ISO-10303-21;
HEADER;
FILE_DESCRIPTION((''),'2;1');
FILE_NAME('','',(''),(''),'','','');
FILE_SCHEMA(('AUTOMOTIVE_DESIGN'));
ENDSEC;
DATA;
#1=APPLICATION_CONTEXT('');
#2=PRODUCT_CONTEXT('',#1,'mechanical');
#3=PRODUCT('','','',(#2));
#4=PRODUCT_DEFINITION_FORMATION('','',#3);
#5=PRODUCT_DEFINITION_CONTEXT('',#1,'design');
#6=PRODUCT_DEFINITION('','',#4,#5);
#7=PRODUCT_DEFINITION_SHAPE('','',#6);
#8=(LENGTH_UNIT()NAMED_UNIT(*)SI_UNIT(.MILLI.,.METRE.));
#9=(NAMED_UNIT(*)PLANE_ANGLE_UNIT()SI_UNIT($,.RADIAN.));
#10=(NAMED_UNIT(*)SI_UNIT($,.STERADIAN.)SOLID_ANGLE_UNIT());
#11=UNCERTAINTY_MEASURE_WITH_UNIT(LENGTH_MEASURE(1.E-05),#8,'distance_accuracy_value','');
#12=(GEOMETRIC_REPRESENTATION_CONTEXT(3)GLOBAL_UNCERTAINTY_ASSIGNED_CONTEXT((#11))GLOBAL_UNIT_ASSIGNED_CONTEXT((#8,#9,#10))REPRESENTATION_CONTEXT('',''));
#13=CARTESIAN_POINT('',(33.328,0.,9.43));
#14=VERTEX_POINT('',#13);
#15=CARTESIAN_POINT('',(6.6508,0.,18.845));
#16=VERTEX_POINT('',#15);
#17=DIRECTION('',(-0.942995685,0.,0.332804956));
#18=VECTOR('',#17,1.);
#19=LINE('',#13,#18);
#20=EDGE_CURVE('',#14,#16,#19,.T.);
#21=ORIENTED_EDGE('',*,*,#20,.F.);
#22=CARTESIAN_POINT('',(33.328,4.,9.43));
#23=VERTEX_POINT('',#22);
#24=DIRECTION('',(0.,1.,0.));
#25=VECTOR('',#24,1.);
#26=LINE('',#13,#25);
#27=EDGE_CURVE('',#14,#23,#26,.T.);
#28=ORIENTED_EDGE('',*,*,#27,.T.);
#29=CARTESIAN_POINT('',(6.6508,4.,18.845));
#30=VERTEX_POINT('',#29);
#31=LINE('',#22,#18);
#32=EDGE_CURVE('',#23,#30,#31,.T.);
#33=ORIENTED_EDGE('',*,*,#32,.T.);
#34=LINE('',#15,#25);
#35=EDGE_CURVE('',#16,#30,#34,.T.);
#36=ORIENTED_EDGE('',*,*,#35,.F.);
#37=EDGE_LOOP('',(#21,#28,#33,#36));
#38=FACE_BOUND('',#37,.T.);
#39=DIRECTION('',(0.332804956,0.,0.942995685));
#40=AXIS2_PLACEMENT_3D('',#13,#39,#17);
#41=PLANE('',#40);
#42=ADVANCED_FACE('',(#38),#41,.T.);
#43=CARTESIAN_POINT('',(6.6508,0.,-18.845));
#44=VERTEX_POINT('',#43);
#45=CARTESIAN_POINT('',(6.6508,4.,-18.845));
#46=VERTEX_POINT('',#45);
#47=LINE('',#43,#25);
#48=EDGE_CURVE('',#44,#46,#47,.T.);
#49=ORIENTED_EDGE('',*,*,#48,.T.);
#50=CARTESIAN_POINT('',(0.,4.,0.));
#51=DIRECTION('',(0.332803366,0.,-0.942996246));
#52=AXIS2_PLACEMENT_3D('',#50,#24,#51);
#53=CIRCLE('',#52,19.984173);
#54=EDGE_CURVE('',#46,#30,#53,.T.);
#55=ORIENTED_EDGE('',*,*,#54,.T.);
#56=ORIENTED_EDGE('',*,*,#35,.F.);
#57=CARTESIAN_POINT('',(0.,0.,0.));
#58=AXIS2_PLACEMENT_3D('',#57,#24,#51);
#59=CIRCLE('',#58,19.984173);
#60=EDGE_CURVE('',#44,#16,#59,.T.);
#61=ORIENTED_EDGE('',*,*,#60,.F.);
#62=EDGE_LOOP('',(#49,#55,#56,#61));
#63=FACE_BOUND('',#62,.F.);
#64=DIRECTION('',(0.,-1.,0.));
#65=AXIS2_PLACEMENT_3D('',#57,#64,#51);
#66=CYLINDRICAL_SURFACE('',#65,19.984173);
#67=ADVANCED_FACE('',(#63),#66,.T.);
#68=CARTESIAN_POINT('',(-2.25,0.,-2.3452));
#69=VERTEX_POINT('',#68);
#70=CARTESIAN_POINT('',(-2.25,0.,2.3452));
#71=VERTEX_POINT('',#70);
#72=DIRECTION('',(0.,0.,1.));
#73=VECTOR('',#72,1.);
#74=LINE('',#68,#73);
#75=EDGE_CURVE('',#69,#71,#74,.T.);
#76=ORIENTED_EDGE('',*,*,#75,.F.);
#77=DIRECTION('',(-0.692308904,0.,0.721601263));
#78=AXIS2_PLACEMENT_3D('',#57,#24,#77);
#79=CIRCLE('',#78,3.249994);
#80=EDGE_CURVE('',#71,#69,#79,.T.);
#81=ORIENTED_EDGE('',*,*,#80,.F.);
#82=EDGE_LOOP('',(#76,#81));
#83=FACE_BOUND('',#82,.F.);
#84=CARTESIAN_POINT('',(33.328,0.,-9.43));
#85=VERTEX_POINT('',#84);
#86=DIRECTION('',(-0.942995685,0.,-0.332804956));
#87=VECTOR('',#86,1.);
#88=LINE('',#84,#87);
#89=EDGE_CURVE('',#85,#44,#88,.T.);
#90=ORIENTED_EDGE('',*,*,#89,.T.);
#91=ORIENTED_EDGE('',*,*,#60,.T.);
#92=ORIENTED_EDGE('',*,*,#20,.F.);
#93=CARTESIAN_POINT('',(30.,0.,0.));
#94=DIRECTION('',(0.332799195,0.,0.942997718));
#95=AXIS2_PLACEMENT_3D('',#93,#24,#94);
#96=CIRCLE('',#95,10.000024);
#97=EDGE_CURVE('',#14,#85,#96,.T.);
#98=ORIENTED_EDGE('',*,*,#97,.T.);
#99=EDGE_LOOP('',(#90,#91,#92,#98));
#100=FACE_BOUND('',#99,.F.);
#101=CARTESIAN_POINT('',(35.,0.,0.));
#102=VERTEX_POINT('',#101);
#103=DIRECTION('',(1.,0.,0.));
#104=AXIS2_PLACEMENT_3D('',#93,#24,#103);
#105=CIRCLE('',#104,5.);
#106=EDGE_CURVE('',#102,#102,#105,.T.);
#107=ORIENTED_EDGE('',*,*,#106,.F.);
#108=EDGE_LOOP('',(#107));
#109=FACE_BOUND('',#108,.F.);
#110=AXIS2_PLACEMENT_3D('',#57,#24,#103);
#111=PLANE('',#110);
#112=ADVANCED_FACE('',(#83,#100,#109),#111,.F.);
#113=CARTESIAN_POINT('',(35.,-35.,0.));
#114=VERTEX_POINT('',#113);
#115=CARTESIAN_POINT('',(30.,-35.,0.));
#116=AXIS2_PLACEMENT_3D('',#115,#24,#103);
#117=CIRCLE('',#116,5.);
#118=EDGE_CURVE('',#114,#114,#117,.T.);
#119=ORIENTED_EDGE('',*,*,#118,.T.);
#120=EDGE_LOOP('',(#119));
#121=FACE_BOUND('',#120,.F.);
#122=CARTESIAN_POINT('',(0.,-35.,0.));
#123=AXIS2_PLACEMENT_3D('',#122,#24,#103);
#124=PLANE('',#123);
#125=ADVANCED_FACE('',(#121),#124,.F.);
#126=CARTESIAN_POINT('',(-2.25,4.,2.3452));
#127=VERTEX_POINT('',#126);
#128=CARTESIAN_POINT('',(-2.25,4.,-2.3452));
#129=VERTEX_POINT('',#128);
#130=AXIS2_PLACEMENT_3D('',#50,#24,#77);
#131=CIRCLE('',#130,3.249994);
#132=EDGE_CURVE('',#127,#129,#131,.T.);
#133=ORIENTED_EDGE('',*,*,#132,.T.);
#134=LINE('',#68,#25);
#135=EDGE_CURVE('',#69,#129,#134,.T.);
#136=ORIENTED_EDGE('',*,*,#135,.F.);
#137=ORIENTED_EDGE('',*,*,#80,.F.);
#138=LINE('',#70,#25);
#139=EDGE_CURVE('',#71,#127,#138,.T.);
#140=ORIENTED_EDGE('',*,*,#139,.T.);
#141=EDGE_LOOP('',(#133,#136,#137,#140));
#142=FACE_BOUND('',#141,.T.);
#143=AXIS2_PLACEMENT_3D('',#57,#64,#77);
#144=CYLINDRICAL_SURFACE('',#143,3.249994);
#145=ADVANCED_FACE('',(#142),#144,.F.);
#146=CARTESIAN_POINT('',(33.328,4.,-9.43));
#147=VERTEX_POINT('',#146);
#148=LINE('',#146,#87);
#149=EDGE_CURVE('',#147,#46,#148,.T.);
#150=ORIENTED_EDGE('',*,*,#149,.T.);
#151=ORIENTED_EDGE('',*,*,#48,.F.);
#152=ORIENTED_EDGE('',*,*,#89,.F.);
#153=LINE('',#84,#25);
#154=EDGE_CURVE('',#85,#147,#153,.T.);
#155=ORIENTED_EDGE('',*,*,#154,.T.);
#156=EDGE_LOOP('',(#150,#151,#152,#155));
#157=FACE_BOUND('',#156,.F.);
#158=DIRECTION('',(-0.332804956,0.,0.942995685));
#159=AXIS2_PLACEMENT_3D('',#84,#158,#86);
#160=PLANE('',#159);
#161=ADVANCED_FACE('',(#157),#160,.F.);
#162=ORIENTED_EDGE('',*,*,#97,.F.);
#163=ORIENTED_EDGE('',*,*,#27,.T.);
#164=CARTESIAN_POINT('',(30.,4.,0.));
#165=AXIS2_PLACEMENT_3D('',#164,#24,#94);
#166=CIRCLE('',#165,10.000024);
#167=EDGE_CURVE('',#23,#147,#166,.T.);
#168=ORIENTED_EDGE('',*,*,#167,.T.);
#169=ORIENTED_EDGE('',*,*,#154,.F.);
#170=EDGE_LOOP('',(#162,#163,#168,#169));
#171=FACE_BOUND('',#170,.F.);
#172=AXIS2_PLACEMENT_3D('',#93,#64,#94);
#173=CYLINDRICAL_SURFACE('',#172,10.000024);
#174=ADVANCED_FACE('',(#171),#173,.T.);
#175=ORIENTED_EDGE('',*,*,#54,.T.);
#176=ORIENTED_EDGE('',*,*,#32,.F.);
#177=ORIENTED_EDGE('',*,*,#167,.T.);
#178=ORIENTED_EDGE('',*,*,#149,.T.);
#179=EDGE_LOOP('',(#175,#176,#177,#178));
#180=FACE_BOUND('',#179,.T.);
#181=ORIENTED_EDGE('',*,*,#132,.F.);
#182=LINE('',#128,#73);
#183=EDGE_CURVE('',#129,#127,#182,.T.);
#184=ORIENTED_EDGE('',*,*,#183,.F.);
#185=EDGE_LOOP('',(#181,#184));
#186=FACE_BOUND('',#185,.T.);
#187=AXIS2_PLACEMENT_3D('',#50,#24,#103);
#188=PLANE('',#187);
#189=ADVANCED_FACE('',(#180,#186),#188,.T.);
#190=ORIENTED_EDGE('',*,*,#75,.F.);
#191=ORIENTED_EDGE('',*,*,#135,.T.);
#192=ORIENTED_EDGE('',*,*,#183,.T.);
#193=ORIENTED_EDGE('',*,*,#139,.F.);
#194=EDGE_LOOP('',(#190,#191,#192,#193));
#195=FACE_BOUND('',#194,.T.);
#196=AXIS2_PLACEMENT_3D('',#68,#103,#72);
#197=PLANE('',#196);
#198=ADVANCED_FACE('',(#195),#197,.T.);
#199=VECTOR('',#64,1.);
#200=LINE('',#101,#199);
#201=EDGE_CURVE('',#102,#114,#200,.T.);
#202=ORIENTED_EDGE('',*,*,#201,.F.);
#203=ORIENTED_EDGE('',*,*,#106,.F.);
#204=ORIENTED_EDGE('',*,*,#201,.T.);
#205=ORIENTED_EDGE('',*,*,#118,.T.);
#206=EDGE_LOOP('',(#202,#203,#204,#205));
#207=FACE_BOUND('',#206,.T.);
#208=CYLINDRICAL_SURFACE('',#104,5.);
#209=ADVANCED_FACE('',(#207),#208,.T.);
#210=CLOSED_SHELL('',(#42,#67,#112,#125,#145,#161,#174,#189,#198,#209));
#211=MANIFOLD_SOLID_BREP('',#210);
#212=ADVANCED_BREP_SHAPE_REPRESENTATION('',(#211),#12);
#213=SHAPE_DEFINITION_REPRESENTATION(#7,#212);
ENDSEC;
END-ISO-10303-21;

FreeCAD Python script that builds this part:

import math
import FreeCAD as App
import Part
import Sketcher
Q = App.Units.Quantity

doc = App.newDocument("Part")
body = doc.addObject("PartDesign::Body", "Body")

# Sketch on XZ plane
sketch1 = body.newObject("Sketcher::SketchObject", "Sketch")
sketch1.AttachmentSupport = (doc.getObject("XZ_Plane"), [""])
sketch1.MapMode = "FlatFace"
sketch1.addGeometry(Part.ArcOfCircle(Part.Circle(App.Vector(30, 0, 0), App.Vector(0, 0, 1), 10.000024), math.radians(-70.561236), math.radians(70.561236)), False)
sketch1.addGeometry(Part.LineSegment(App.Vector(33.328, -9.43, 0), App.Vector(6.6508, -18.845, 0)), False)
sketch1.addGeometry(Part.ArcOfCircle(Part.Circle(App.Vector(0, 0, 0), App.Vector(0, 0, 1), 19.984173), math.radians(70.560983), math.radians(289.439017)), False)
sketch1.addGeometry(Part.LineSegment(App.Vector(6.6508, 18.845, 0), App.Vector(33.328, 9.43, 0)), False)
sketch1.addGeometry(Part.LineSegment(App.Vector(-2.25, 2.3452, 0), App.Vector(-2.25, -2.3452, 0)), False)
sketch1.addGeometry(Part.ArcOfCircle(Part.Circle(App.Vector(0, 0, 0), App.Vector(0, 0, 1), 3.249994), math.radians(-133.813158), math.radians(133.813158)), False)
sketch1.addConstraint(Sketcher.Constraint("Tangent", 0, 1, 1, 1))
sketch1.addConstraint(Sketcher.Constraint("Tangent", 1, 2, 2, 2))
sketch1.addConstraint(Sketcher.Constraint("Tangent", 2, 1, 3, 1))
sketch1.addConstraint(Sketcher.Constraint("Tangent", 3, 2, 0, 2))
sketch1.addConstraint(Sketcher.Constraint("Coincident", 4, 1, 5, 2))
sketch1.addConstraint(Sketcher.Constraint("Coincident", 5, 1, 4, 2))
sketch1.addConstraint(Sketcher.Constraint("Vertical", 4))
sketch1.addConstraint(Sketcher.Constraint("Coincident", 2, 3, -1, 1))
sketch1.addConstraint(Sketcher.Constraint("Coincident", 5, 3, -1, 1))
sketch1.addConstraint(Sketcher.Constraint("PointOnObject", 0, 3, -1))
sketch1.addConstraint(Sketcher.Constraint("Radius", 0, Q("10 mm")))
sketch1.addConstraint(Sketcher.Constraint("Radius", 5, Q("3.25 mm")))
sketch1.addConstraint(Sketcher.Constraint("DistanceX", -1, 1, 0, 3, Q("30 mm")))
sketch1.addConstraint(Sketcher.Constraint("Angle", 1, Q("-160.561 deg")))
sketch1.addConstraint(Sketcher.Constraint("DistanceX", 4, 1, -1, 1, Q("2.25 mm")))
pad1 = body.newObject("PartDesign::Pad", "Pad")
pad1.Profile = sketch1
pad1.Length = 4
pad1.Reversed = True

# Sketch on XZ plane
sketch2 = body.newObject("Sketcher::SketchObject", "Sketch001")
sketch2.AttachmentSupport = (doc.getObject("XZ_Plane"), [""])
sketch2.MapMode = "FlatFace"
sketch2.addGeometry(Part.Circle(App.Vector(30, 0, 0), App.Vector(0, 0, 1), 5), False)
sketch2.addConstraint(Sketcher.Constraint("PointOnObject", 0, 3, -1))
sketch2.addConstraint(Sketcher.Constraint("Diameter", 0, Q("10 mm")))
sketch2.addConstraint(Sketcher.Constraint("DistanceX", -1, 1, 0, 3, Q("30 mm")))
pad2 = body.newObject("PartDesign::Pad", "Pad001")
pad2.Profile = sketch2
pad2.Length = 35

doc.recompute()
